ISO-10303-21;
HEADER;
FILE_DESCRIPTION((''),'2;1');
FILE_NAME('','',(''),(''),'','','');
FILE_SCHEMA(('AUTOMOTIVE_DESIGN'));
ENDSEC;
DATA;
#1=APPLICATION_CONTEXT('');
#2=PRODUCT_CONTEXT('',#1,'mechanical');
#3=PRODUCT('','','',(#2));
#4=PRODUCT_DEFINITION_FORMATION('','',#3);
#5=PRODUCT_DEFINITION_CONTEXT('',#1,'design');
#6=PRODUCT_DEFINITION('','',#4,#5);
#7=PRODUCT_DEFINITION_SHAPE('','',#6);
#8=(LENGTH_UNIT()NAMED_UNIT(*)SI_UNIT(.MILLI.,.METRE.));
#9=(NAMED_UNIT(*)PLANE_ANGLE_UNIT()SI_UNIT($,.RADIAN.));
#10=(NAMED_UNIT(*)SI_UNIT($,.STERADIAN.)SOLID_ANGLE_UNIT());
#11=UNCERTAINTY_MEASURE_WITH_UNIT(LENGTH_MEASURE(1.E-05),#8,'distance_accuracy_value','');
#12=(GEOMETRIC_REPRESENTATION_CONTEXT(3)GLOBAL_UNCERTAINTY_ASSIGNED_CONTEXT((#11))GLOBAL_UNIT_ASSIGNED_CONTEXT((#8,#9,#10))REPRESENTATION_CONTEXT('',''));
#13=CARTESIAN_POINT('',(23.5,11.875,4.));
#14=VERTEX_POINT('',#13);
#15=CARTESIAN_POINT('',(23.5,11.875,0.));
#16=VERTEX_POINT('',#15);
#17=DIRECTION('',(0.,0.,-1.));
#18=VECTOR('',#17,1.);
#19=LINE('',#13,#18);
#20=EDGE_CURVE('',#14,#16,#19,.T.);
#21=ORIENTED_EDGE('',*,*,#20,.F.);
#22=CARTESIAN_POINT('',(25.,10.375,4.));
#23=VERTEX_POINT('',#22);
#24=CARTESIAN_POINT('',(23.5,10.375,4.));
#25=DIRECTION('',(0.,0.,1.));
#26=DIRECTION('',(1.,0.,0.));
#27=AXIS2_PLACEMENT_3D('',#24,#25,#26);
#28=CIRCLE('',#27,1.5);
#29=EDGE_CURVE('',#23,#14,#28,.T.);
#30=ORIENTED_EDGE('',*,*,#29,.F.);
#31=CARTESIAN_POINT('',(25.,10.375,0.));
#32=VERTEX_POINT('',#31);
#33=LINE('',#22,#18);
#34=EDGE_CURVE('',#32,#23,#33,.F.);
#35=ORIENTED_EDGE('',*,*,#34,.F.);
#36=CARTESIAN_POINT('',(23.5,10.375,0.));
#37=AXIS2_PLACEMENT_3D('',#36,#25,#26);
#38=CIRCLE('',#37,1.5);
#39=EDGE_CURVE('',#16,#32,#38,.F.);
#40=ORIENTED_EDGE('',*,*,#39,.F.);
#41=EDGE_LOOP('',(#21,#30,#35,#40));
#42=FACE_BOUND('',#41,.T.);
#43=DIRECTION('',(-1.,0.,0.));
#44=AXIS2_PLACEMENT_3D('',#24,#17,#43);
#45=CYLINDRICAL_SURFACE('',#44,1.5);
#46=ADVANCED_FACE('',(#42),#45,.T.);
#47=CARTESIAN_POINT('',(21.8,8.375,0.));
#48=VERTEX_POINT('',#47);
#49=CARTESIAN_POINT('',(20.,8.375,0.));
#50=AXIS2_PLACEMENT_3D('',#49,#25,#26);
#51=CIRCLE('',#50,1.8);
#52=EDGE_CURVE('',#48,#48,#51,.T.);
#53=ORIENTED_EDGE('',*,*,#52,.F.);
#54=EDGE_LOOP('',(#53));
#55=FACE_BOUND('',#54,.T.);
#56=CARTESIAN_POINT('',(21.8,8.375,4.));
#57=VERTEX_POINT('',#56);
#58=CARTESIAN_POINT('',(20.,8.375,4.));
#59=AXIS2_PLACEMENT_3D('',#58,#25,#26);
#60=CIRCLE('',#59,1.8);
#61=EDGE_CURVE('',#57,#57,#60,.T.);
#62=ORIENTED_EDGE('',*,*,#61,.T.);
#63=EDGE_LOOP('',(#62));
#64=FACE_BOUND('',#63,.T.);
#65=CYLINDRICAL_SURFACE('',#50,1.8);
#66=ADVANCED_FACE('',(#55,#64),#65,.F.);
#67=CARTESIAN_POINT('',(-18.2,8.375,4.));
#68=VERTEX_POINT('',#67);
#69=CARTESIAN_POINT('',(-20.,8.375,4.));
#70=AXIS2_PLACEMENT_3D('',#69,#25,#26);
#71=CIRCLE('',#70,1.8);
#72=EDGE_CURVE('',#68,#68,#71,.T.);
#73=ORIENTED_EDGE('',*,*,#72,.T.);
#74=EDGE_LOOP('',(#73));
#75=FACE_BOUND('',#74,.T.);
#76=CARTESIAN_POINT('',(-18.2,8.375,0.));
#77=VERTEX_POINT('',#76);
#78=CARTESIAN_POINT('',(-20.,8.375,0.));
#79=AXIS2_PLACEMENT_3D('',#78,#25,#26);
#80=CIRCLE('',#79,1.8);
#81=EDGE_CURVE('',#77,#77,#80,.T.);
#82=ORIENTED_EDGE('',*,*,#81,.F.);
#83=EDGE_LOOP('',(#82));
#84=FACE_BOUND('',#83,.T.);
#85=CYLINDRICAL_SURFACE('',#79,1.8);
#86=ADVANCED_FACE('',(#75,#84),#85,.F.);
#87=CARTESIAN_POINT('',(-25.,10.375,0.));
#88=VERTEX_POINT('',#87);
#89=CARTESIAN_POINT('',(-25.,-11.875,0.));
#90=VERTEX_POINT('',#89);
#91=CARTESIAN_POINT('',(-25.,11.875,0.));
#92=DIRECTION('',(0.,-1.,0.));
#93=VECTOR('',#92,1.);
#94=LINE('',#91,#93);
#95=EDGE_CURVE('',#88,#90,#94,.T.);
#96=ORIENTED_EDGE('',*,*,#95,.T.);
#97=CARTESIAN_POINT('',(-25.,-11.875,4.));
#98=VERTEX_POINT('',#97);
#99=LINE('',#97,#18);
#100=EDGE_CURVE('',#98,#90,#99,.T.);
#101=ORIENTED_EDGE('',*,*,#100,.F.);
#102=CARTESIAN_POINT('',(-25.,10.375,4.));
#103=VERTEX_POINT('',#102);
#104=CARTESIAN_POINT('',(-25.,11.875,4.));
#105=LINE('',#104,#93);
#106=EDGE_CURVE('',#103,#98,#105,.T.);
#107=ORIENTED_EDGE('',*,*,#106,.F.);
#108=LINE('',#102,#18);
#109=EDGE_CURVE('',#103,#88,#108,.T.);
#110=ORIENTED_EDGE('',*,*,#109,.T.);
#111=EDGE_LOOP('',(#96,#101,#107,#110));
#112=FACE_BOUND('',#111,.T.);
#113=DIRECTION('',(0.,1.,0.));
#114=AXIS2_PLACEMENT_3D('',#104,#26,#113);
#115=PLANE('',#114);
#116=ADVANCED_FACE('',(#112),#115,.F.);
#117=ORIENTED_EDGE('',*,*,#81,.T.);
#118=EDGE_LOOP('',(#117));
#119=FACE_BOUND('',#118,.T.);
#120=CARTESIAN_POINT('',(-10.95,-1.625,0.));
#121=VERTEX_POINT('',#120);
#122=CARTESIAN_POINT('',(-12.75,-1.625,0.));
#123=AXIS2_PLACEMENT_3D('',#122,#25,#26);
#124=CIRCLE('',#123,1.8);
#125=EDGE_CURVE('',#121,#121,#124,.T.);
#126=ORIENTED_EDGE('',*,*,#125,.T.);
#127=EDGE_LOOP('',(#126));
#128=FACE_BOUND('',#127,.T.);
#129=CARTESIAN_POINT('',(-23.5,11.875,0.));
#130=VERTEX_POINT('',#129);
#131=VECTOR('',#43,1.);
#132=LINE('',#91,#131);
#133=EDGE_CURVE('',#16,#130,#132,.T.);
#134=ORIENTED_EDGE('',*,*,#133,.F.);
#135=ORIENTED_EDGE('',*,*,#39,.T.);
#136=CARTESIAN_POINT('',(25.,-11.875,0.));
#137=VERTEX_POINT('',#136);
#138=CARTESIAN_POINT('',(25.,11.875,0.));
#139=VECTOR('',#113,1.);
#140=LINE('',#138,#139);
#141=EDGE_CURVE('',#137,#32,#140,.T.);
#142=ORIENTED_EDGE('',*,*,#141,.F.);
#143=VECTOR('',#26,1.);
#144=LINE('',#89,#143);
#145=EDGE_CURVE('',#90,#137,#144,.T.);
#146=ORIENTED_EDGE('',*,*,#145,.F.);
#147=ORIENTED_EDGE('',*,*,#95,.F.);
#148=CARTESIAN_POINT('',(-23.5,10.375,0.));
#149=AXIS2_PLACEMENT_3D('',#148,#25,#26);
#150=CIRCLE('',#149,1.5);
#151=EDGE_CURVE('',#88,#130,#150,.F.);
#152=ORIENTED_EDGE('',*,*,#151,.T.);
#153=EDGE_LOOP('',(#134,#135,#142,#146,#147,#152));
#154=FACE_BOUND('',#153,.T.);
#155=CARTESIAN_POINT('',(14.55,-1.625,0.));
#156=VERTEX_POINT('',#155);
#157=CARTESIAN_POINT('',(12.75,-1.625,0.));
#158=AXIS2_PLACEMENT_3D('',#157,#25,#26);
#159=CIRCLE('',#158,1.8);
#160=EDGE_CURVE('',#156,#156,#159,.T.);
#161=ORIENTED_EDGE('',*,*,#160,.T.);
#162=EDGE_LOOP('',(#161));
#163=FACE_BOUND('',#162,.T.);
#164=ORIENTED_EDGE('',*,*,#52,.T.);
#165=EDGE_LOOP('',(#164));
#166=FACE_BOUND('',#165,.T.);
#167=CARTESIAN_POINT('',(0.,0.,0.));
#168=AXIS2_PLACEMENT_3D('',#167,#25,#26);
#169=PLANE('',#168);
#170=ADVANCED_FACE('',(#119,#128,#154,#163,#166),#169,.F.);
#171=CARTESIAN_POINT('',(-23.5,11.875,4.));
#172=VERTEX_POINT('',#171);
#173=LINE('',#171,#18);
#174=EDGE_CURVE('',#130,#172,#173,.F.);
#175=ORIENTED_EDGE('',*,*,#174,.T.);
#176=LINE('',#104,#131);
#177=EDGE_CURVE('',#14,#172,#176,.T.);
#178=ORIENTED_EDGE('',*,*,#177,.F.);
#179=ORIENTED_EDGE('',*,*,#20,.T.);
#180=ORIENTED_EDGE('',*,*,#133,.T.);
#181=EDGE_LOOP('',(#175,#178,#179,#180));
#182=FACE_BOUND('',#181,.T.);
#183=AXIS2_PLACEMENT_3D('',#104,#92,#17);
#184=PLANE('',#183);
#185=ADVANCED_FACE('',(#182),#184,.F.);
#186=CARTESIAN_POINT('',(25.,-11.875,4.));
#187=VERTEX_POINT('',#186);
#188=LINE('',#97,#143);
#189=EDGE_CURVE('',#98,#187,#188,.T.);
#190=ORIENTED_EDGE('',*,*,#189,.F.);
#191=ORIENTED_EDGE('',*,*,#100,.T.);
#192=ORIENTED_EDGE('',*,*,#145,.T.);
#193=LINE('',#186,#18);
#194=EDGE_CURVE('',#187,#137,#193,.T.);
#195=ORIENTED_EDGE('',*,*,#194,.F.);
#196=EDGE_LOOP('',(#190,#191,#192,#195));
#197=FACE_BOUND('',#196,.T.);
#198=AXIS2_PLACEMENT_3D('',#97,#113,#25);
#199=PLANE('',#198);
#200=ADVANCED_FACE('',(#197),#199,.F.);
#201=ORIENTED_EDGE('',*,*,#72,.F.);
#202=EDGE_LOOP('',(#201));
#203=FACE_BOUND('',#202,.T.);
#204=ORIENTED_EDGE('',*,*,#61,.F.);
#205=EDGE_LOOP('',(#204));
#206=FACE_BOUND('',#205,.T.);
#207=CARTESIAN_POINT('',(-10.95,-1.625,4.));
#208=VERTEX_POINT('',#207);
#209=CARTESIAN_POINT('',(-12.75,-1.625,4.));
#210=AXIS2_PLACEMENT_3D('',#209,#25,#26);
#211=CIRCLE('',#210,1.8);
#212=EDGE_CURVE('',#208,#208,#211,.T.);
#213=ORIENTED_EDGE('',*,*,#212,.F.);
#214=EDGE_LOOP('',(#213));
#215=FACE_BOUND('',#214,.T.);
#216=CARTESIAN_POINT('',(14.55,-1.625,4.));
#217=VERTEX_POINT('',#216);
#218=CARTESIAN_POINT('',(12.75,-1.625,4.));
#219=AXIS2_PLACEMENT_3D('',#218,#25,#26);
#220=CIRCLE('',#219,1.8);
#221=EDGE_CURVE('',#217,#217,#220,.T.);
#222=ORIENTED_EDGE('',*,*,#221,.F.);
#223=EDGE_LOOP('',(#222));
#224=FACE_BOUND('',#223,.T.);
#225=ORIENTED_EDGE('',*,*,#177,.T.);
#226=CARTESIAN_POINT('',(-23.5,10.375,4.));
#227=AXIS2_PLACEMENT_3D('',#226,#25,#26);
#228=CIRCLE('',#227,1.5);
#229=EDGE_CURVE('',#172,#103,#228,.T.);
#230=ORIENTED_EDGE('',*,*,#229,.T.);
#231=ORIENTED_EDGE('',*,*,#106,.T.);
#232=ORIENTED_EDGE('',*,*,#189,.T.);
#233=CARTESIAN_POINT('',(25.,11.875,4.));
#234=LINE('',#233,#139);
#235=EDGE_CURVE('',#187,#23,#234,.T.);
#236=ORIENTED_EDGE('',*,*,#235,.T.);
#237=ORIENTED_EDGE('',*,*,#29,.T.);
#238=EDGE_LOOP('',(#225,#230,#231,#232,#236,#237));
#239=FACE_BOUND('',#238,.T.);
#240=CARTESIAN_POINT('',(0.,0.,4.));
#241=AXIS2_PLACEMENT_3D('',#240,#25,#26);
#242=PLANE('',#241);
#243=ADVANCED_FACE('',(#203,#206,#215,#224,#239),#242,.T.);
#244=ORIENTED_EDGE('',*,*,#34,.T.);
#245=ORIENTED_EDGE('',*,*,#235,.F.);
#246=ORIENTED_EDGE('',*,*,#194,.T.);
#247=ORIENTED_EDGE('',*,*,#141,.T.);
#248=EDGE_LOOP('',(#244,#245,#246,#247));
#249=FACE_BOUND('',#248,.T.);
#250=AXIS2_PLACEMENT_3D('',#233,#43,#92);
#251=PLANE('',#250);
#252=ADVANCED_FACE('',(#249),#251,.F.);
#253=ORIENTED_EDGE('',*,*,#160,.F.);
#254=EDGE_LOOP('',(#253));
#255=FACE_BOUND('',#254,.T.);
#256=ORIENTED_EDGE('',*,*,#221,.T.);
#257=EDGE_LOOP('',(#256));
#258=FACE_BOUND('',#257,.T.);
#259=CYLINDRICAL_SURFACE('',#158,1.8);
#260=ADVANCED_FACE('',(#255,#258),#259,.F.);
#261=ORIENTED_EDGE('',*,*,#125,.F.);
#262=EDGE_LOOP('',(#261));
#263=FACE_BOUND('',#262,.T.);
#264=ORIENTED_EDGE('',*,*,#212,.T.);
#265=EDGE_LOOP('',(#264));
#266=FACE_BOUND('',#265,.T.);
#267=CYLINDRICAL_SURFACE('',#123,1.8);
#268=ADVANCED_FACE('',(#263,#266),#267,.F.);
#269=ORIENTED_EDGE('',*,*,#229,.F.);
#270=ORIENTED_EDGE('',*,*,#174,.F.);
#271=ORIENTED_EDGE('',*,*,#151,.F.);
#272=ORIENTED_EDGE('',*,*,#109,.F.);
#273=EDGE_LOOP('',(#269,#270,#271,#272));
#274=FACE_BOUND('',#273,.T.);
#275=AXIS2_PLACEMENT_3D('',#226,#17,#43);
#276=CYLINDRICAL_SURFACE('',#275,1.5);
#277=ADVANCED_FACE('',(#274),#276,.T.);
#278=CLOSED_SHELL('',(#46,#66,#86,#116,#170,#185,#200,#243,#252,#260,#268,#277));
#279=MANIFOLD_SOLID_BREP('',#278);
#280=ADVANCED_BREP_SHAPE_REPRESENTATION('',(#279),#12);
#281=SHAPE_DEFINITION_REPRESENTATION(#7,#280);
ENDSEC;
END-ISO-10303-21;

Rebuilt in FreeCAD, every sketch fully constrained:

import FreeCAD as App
import Part
import Sketcher
from FreeCAD import Vector
Q = App.Units.Quantity


def edges_at(feature, points):
    """Names of the edges that pass closest to the given points."""
    edges = feature.Shape.Edges
    near = lambda p: min(range(len(edges)), key=lambda i: edges[i].distToShape(Part.Vertex(*p))[0])
    return sorted({f"Edge{near(p) + 1}" for p in points})


def add_polygon(sketch, points):
    """Adds a closed chain of lines whose ends are joined by coincident constraints."""
    first, n = sketch.GeometryCount, len(points)
    for a, b in zip(points, points[1:] + points[:1]):
        sketch.addGeometry(Part.LineSegment(App.Vector(*a, 0), App.Vector(*b, 0)), False)
    for i in range(n):
        sketch.addConstraint(Sketcher.Constraint("Coincident", first + i, 2, first + (i + 1) % n, 1))

doc = App.newDocument("Part")
params = doc.addObject("Spreadsheet::Sheet", "Params")
for row, (alias, value) in enumerate([
    ("sketch1_width", "50 mm"),
    ("sketch1_height", "23.75 mm"),
    ("pad1_length", "4 mm"),
    ("fillet_radius", "1.5 mm"),
    ("sketch2_diameter", "3.6 mm"),
], start=1):
    params.set(f"A{row}", alias)
    params.set(f"B{row}", "=" + value)
    params.setAlias(f"B{row}", alias)

body = doc.addObject("PartDesign::Body", "Body")

# Sketch on XY plane
sketch1 = body.newObject("Sketcher::SketchObject", "Sketch")
sketch1.AttachmentSupport = (doc.getObject("XY_Plane"), [""])
sketch1.MapMode = "FlatFace"
add_polygon(sketch1, [(-25, 11.875), (-25, -11.875), (25, -11.875), (25, 11.875)])  # lines 0-3
sketch1.addConstraint(Sketcher.Constraint("Vertical", 0))
sketch1.addConstraint(Sketcher.Constraint("Horizontal", 1))
sketch1.addConstraint(Sketcher.Constraint("Vertical", 2))
sketch1.addConstraint(Sketcher.Constraint("Horizontal", 3))
sketch1.addConstraint(Sketcher.Constraint("Symmetric", 0, 2, 2, 2, -1, 1))
sketch1.addConstraint(Sketcher.Constraint("DistanceX", 1, 1, 1, 2, Q("50 mm")))
sketch1.addConstraint(Sketcher.Constraint("DistanceY", 0, 2, 0, 1, Q("23.75 mm")))
sketch1.setExpression("Constraints[9]", "Params.sketch1_width")
sketch1.setExpression("Constraints[10]", "Params.sketch1_height")
pad1 = body.newObject("PartDesign::Pad", "Pad")
pad1.Profile = sketch1
pad1.setExpression("Length", "Params.pad1_length")
doc.recompute()

fillet = body.newObject("PartDesign::Fillet", "Fillet")
fillet.Base = (pad1, edges_at(pad1, [(-25, 11.875, 2), (25, 11.875, 2)]))
fillet.setExpression("Radius", "Params.fillet_radius")

# Sketch on XY plane
sketch2 = body.newObject("Sketcher::SketchObject", "Sketch001")
sketch2.AttachmentSupport = (doc.getObject("XY_Plane"), [""])
sketch2.MapMode = "FlatFace"
sketch2.AttachmentOffset = App.Placement(Vector(0, 0, 4), App.Rotation())
sketch2.addGeometry(Part.Circle(Vector(-12.75, -1.625, 0), Vector(0, 0, 1), 1.8), False)
sketch2.addGeometry(Part.Circle(Vector(-20, 8.375, 0), Vector(0, 0, 1), 1.8), False)
sketch2.addGeometry(Part.Circle(Vector(12.75, -1.625, 0), Vector(0, 0, 1), 1.8), False)
sketch2.addGeometry(Part.Circle(Vector(20, 8.375, 0), Vector(0, 0, 1), 1.8), False)
sketch2.addConstraint(Sketcher.Constraint("Equal", 0, 1))
sketch2.addConstraint(Sketcher.Constraint("Equal", 1, 2))
sketch2.addConstraint(Sketcher.Constraint("Equal", 2, 3))
sketch2.addConstraint(Sketcher.Constraint("Symmetric", 0, 3, 2, 3, -2))
sketch2.addConstraint(Sketcher.Constraint("Symmetric", 1, 3, 3, 3, -2))
sketch2.addConstraint(Sketcher.Constraint("Diameter", 0, Q("3.6 mm")))
sketch2.addConstraint(Sketcher.Constraint("DistanceX", 1, 3, -1, 1, Q("20 mm")))
sketch2.addConstraint(Sketcher.Constraint("DistanceY", 0, 3, 1, 3, Q("10 mm")))
sketch2.addConstraint(Sketcher.Constraint("DistanceX", 0, 3, 2, 3, Q("25.5 mm")))
sketch2.addConstraint(Sketcher.Constraint("DistanceY", 0, 3, -1, 1, Q("1.625 mm")))
sketch2.setExpression("Constraints[5]", "Params.sketch2_diameter")
pocket1 = body.newObject("PartDesign::Pocket", "Pocket")
pocket1.Profile = sketch2
pocket1.Type = "ThroughAll"

doc.recompute()
